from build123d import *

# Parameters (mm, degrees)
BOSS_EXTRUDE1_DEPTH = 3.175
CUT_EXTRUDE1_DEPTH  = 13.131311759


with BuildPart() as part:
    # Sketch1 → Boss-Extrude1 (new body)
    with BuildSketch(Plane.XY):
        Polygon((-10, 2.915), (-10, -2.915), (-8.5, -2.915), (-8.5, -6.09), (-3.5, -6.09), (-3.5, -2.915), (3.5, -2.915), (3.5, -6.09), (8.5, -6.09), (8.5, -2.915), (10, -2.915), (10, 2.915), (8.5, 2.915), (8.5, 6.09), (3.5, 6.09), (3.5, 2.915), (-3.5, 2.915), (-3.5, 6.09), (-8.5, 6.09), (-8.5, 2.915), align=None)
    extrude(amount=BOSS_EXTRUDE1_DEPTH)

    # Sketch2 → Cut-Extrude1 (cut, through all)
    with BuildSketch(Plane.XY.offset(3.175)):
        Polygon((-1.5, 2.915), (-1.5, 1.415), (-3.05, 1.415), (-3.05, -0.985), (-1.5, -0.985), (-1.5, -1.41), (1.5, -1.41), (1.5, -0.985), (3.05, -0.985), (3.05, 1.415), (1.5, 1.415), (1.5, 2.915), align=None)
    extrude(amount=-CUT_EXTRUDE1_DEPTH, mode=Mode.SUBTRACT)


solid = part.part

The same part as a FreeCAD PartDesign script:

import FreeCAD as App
import Part
import Sketcher
Q = App.Units.Quantity


def add_polygon(sketch, points):
    """Adds a closed chain of lines whose ends are joined by coincident constraints."""
    first, n = sketch.GeometryCount, len(points)
    for a, b in zip(points, points[1:] + points[:1]):
        sketch.addGeometry(Part.LineSegment(App.Vector(*a, 0), App.Vector(*b, 0)), False)
    for i in range(n):
        sketch.addConstraint(Sketcher.Constraint("Coincident", first + i, 2, first + (i + 1) % n, 1))

doc = App.newDocument("Part")
body = doc.addObject("PartDesign::Body", "Body")

# Sketch on XY plane
sketch1 = doc.addObject("Sketcher::SketchObject", "Sketch")
body.addObject(sketch1)
sketch1.AttachmentSupport = (doc.XY_Plane, [""])
sketch1.MapMode = "FlatFace"
add_polygon(sketch1, [(-10, 2.915), (-10, -2.915), (-8.5, -2.915), (-8.5, -6.09), (-3.5, -6.09), (-3.5, -2.915), (3.5, -2.915), (3.5, -6.09), (8.5, -6.09), (8.5, -2.915), (10, -2.915), (10, 2.915), (8.5, 2.915), (8.5, 6.09), (3.5, 6.09), (3.5, 2.915), (-3.5, 2.915), (-3.5, 6.09), (-8.5, 6.09), (-8.5, 2.915)])  # lines 0-19
sketch1.addConstraint(Sketcher.Constraint("Vertical", 0))
sketch1.addConstraint(Sketcher.Constraint("Horizontal", 1))
sketch1.addConstraint(Sketcher.Constraint("Vertical", 2))
sketch1.addConstraint(Sketcher.Constraint("Horizontal", 3))
sketch1.addConstraint(Sketcher.Constraint("Vertical", 4))
sketch1.addConstraint(Sketcher.Constraint("Horizontal", 5))
sketch1.addConstraint(Sketcher.Constraint("Vertical", 6))
sketch1.addConstraint(Sketcher.Constraint("Horizontal", 7))
sketch1.addConstraint(Sketcher.Constraint("Vertical", 8))
sketch1.addConstraint(Sketcher.Constraint("Horizontal", 9))
sketch1.addConstraint(Sketcher.Constraint("Vertical", 10))
sketch1.addConstraint(Sketcher.Constraint("Horizontal", 11))
sketch1.addConstraint(Sketcher.Constraint("Vertical", 12))
sketch1.addConstraint(Sketcher.Constraint("Horizontal", 13))
sketch1.addConstraint(Sketcher.Constraint("Vertical", 14))
sketch1.addConstraint(Sketcher.Constraint("Horizontal", 15))
sketch1.addConstraint(Sketcher.Constraint("Vertical", 16))
sketch1.addConstraint(Sketcher.Constraint("Horizontal", 17))
sketch1.addConstraint(Sketcher.Constraint("Vertical", 18))
sketch1.addConstraint(Sketcher.Constraint("Horizontal", 19))
sketch1.addConstraint(Sketcher.Constraint("Symmetric", 0, 2, 10, 2, -1, 1))
sketch1.addConstraint(Sketcher.Constraint("Symmetric", 2, 2, 12, 2, -1, 1))
sketch1.addConstraint(Sketcher.Constraint("Symmetric", 4, 2, 14, 2, -1, 1))
sketch1.addConstraint(Sketcher.Constraint("Symmetric", 6, 2, 16, 2, -1, 1))
sketch1.addConstraint(Sketcher.Constraint("Symmetric", 8, 2, 18, 2, -1, 1))
sketch1.addConstraint(Sketcher.Constraint("Symmetric", 3, 2, 6, 2, -2))
sketch1.addConstraint(Sketcher.Constraint("Symmetric", 1, 2, 8, 2, -2))
sketch1.addConstraint(Sketcher.Constraint("Horizontal", 1, 2, 4, 2))
sketch1.addConstraint(Sketcher.Constraint("DistanceX", 3, 1, 3, 2, Q("5 mm")))
sketch1.addConstraint(Sketcher.Constraint("DistanceX", 5, 1, 5, 2, Q("7 mm")))
sketch1.addConstraint(Sketcher.Constraint("DistanceX", 1, 1, 1, 2, Q("1.5 mm")))
sketch1.addConstraint(Sketcher.Constraint("DistanceY", 0, 2, 0, 1, Q("5.83 mm")))
sketch1.addConstraint(Sketcher.Constraint("DistanceY", 2, 2, 2, 1, Q("3.175 mm")))
pad1 = doc.addObject("PartDesign::Pad", "Pad")
body.addObject(pad1)
pad1.Profile = sketch1
pad1.Length = 3.175

# Sketch on XY plane
sketch2 = doc.addObject("Sketcher::SketchObject", "Sketch001")
body.addObject(sketch2)
sketch2.AttachmentSupport = (doc.XY_Plane, [""])
sketch2.MapMode = "FlatFace"
sketch2.AttachmentOffset = App.Placement(App.Vector(0, 0, 3.175), App.Rotation())
add_polygon(sketch2, [(-1.5, 2.915), (-1.5, 1.415), (-3.05, 1.415), (-3.05, -0.985), (-1.5, -0.985), (-1.5, -1.41), (1.5, -1.41), (1.5, -0.985), (3.05, -0.985), (3.05, 1.415), (1.5, 1.415), (1.5, 2.915)])  # lines 0-11
sketch2.addConstraint(Sketcher.Constraint("Vertical", 0))
sketch2.addConstraint(Sketcher.Constraint("Horizontal", 1))
sketch2.addConstraint(Sketcher.Constraint("Vertical", 2))
sketch2.addConstraint(Sketcher.Constraint("Horizontal", 3))
sketch2.addConstraint(Sketcher.Constraint("Vertical", 4))
sketch2.addConstraint(Sketcher.Constraint("Horizontal", 5))
sketch2.addConstraint(Sketcher.Constraint("Vertical", 6))
sketch2.addConstraint(Sketcher.Constraint("Horizontal", 7))
sketch2.addConstraint(Sketcher.Constraint("Vertical", 8))
sketch2.addConstraint(Sketcher.Constraint("Horizontal", 9))
sketch2.addConstraint(Sketcher.Constraint("Vertical", 10))
sketch2.addConstraint(Sketcher.Constraint("Horizontal", 11))
sketch2.addConstraint(Sketcher.Constraint("Symmetric", 3, 2, 6, 2, -2))
sketch2.addConstraint(Sketcher.Constraint("Symmetric", 1, 2, 8, 2, -2))
sketch2.addConstraint(Sketcher.Constraint("Vertical", 0, 2, 3, 2))
sketch2.addConstraint(Sketcher.Constraint("Vertical", 6, 2, 9, 2))
sketch2.addConstraint(Sketcher.Constraint("DistanceX", 5, 1, 5, 2, Q("3 mm")))
sketch2.addConstraint(Sketcher.Constraint("DistanceY", 0, 2, 0, 1, Q("1.5 mm")))
sketch2.addConstraint(Sketcher.Constraint("DistanceY", 2, 2, 2, 1, Q("2.4 mm")))
sketch2.addConstraint(Sketcher.Constraint("DistanceX", 1, 2, 1, 1, Q("1.55 mm")))
sketch2.addConstraint(Sketcher.Constraint("DistanceY", 4, 2, 4, 1, Q("0.425 mm")))
sketch2.addConstraint(Sketcher.Constraint("DistanceY", 4, 2, -1, 1, Q("1.41 mm")))
pocket1 = doc.addObject("PartDesign::Pocket", "Pocket")
body.addObject(pocket1)
pocket1.Profile = sketch2
pocket1.Type = "ThroughAll"

doc.recompute()
